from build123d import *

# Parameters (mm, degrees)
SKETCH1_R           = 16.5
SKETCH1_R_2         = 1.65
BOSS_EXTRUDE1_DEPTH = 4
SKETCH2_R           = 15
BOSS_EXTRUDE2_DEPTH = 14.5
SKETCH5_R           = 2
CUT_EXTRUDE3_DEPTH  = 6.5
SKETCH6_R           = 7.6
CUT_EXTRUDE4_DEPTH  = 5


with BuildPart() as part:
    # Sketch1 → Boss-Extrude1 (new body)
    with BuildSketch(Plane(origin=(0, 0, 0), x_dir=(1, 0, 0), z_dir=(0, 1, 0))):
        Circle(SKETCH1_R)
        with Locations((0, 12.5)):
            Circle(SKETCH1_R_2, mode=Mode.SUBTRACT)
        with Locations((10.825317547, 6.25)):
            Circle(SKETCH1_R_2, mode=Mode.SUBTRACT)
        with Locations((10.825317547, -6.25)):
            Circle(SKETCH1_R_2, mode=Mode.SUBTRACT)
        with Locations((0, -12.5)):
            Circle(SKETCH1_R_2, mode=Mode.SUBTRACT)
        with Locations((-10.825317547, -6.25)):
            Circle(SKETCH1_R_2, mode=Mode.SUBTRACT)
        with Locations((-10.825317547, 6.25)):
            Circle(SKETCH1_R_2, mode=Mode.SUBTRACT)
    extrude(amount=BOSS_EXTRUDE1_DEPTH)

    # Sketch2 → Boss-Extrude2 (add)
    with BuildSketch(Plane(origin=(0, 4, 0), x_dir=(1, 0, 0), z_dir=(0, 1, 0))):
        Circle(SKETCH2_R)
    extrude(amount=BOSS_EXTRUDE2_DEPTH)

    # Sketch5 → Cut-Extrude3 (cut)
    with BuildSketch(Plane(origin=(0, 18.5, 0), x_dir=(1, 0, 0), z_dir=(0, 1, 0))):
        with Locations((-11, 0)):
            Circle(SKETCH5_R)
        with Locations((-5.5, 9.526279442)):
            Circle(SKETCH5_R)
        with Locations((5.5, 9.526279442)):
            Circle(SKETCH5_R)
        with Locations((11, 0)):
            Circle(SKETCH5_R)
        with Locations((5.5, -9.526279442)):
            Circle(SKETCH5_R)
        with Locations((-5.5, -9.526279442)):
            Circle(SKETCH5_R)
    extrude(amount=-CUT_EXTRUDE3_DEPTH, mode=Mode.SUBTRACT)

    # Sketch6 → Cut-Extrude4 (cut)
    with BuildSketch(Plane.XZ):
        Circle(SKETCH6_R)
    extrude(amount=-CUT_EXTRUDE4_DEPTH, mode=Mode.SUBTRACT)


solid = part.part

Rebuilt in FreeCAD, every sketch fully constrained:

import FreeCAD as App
import Part
import Sketcher
from FreeCAD import Vector
Q = App.Units.Quantity

doc = App.newDocument("Part")
body = doc.addObject("PartDesign::Body", "Body")

sketch1 = body.newObject("Sketcher::SketchObject", "Sketch")
sketch1.AttachmentSupport = (doc.getObject("XZ_Plane"), [""])
sketch1.MapMode = "FlatFace"
sketch1.addGeometry([
    Part.Circle(Vector(0, 0, 0), Vector(0, 0, 1), 16.5),
    Part.Circle(Vector(-10.8, 6.2, 0), Vector(0, 0, 1), 1.6),
    Part.Circle(Vector(0, 12.5, 0), Vector(0, 0, 1), 1.6),
    Part.Circle(Vector(10.8, 6.2, 0), Vector(0, 0, 1), 1.6),
    Part.Circle(Vector(-10.8, -6.2, 0), Vector(0, 0, 1), 1.6),
    Part.Circle(Vector(10.8, -6.2, 0), Vector(0, 0, 1), 1.6),
    Part.Circle(Vector(0, -12.5, 0), Vector(0, 0, 1), 1.6),
], False)
sketch1.addConstraint([
    Sketcher.Constraint("Coincident", 0, 3, -1, 1),
    Sketcher.Constraint("Equal", 1, 2),
    Sketcher.Constraint("Equal", 2, 3),
    Sketcher.Constraint("Equal", 3, 4),
    Sketcher.Constraint("Equal", 4, 5),
    Sketcher.Constraint("Equal", 5, 6),
    Sketcher.Constraint("Symmetric", 3, 3, 4, 3, -1, 1),
    Sketcher.Constraint("Symmetric", 1, 3, 5, 3, -1, 1),
    Sketcher.Constraint("Symmetric", 2, 3, 6, 3, -1, 1),
    Sketcher.Constraint("Symmetric", 1, 3, 3, 3, -2),
    Sketcher.Constraint("PointOnObject", 2, 3, -2),
    Sketcher.Constraint("Diameter", 0, Q("33 mm")),
    Sketcher.Constraint("Diameter", 1, Q("3.3 mm")),
    Sketcher.Constraint("DistanceY", -1, 1, 2, 3, Q("12.5 mm")),
    Sketcher.Constraint("DistanceY", 4, 3, 1, 3, Q("12.5 mm")),
    Sketcher.Constraint("DistanceX", 1, 3, -1, 1, Q("10.825318 mm")),
])
pad1 = body.newObject("PartDesign::Pad", "Pad")
pad1.Profile = sketch1
pad1.Length = 4
pad1.Reversed = True

sketch2 = body.newObject("Sketcher::SketchObject", "Sketch001")
sketch2.AttachmentSupport = (doc.getObject("XZ_Plane"), [""])
sketch2.MapMode = "FlatFace"
sketch2.AttachmentOffset = App.Placement(Vector(0, 0, -4), App.Rotation())
sketch2.addGeometry(Part.Circle(Vector(0, 0, 0), Vector(0, 0, 1), 15), False)
sketch2.addConstraint([
    Sketcher.Constraint("Coincident", 0, 3, -1, 1),
    Sketcher.Constraint("Diameter", 0, Q("30 mm")),
])
pad2 = body.newObject("PartDesign::Pad", "Pad001")
pad2.Profile = sketch2
pad2.Length = 14.5
pad2.Reversed = True

sketch3 = body.newObject("Sketcher::SketchObject", "Sketch002")
sketch3.AttachmentSupport = (doc.getObject("XZ_Plane"), [""])
sketch3.MapMode = "FlatFace"
sketch3.AttachmentOffset = App.Placement(Vector(0, 0, -18.5), App.Rotation())
sketch3.addGeometry([
    Part.Circle(Vector(-11, 0, 0), Vector(0, 0, 1), 2),
    Part.Circle(Vector(-5.5, -9.5, 0), Vector(0, 0, 1), 2),
    Part.Circle(Vector(5.5, -9.5, 0), Vector(0, 0, 1), 2),
    Part.Circle(Vector(11, 0, 0), Vector(0, 0, 1), 2),
    Part.Circle(Vector(5.5, 9.5, 0), Vector(0, 0, 1), 2),
    Part.Circle(Vector(-5.5, 9.5, 0), Vector(0, 0, 1), 2),
], False)
sketch3.addConstraint([
    Sketcher.Constraint("Equal", 0, 1),
    Sketcher.Constraint("Equal", 1, 2),
    Sketcher.Constraint("Equal", 2, 3),
    Sketcher.Constraint("Equal", 3, 4),
    Sketcher.Constraint("Equal", 4, 5),
    Sketcher.Constraint("Symmetric", 0, 3, 3, 3, -1, 1),
    Sketcher.Constraint("Symmetric", 1, 3, 4, 3, -1, 1),
    Sketcher.Constraint("Symmetric", 2, 3, 5, 3, -1, 1),
    Sketcher.Constraint("Symmetric", 1, 3, 2, 3, -2),
    Sketcher.Constraint("PointOnObject", 0, 3, -1),
    Sketcher.Constraint("Diameter", 0, Q("4 mm")),
    Sketcher.Constraint("DistanceX", 0, 3, -1, 1, Q("11 mm")),
    Sketcher.Constraint("DistanceX", 1, 3, 2, 3, Q("11 mm")),
    Sketcher.Constraint("DistanceY", 1, 3, -1, 1, Q("9.526279 mm")),
])
pocket1 = body.newObject("PartDesign::Pocket", "Pocket")
pocket1.Profile = sketch3
pocket1.Length = 6.5
pocket1.Reversed = True

sketch4 = body.newObject("Sketcher::SketchObject", "Sketch003")
sketch4.AttachmentSupport = (doc.getObject("XZ_Plane"), [""])
sketch4.MapMode = "FlatFace"
sketch4.addGeometry(Part.Circle(Vector(0, 0, 0), Vector(0, 0, 1), 8), False)
sketch4.addConstraint([
    Sketcher.Constraint("Coincident", 0, 3, -1, 1),
    Sketcher.Constraint("Diameter", 0, Q("15.2 mm")),
])
pocket2 = body.newObject("PartDesign::Pocket", "Pocket001")
pocket2.Profile = sketch4
pocket2.Length = 5

doc.recompute()
